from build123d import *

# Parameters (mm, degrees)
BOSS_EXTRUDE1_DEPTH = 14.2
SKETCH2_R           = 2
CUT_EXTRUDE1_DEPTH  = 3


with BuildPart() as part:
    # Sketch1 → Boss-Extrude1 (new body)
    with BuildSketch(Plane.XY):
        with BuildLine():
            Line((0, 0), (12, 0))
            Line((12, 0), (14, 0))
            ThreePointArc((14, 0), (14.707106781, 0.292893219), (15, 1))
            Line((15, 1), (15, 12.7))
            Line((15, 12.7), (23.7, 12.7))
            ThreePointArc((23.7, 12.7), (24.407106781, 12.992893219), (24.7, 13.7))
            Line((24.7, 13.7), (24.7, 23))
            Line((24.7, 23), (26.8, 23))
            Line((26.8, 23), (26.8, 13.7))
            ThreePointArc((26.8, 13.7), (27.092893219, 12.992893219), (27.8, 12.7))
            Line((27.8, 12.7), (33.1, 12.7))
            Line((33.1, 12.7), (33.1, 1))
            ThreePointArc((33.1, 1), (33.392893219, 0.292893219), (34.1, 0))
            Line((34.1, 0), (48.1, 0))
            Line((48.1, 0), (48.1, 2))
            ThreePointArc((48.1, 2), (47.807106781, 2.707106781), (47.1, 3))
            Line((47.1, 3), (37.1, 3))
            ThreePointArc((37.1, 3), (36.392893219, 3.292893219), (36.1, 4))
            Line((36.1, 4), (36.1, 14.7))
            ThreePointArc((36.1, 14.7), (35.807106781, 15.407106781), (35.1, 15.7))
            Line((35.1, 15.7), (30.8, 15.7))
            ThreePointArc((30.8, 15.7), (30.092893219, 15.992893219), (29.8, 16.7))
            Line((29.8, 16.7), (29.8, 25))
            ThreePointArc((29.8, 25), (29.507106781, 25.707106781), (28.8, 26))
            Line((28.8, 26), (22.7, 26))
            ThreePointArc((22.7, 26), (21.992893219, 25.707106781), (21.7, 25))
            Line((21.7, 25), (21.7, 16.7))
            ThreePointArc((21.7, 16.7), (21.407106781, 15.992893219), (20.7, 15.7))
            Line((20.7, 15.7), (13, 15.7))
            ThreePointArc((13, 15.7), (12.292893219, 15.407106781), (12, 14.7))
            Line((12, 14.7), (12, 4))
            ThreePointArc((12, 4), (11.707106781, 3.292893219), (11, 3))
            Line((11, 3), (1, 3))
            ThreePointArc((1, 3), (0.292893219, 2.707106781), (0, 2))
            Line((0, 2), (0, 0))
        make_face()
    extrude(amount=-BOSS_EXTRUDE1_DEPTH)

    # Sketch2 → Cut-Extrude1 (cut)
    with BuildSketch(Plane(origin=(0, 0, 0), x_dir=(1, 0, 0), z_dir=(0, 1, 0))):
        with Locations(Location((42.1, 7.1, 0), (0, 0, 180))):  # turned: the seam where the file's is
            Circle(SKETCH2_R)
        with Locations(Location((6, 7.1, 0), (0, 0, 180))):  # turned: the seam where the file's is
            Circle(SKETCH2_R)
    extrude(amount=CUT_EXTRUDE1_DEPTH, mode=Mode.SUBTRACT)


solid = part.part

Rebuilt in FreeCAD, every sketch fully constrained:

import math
import FreeCAD as App
import Part
import Sketcher
Q = App.Units.Quantity

doc = App.newDocument("Part")
body = doc.addObject("PartDesign::Body", "Body")

# Sketch on XY plane
sketch1 = doc.addObject("Sketcher::SketchObject", "Sketch")
body.addObject(sketch1)
sketch1.AttachmentSupport = (doc.XY_Plane, [""])
sketch1.MapMode = "FlatFace"
sketch1.addGeometry([
    Part.LineSegment(App.Vector(0, 0, 0), App.Vector(14, 0, 0)),  # 0
    Part.ArcOfCircle(Part.Circle(App.Vector(14, 1, 0), App.Vector(0, 0, 1), 1), math.radians(-90), math.radians(0)),  # 1
    Part.LineSegment(App.Vector(15, 1, 0), App.Vector(15, 12.7, 0)),  # 2
    Part.LineSegment(App.Vector(15, 12.7, 0), App.Vector(23.7, 12.7, 0)),  # 3
    Part.ArcOfCircle(Part.Circle(App.Vector(23.7, 13.7, 0), App.Vector(0, 0, 1), 1), math.radians(-90), math.radians(0)),  # 4
    Part.LineSegment(App.Vector(24.7, 13.7, 0), App.Vector(24.7, 23, 0)),  # 5
    Part.LineSegment(App.Vector(24.7, 23, 0), App.Vector(26.8, 23, 0)),  # 6
    Part.LineSegment(App.Vector(26.8, 23, 0), App.Vector(26.8, 13.7, 0)),  # 7
    Part.ArcOfCircle(Part.Circle(App.Vector(27.8, 13.7, 0), App.Vector(0, 0, 1), 1), math.radians(-180), math.radians(-90)),  # 8
    Part.LineSegment(App.Vector(27.8, 12.7, 0), App.Vector(33.1, 12.7, 0)),  # 9
    Part.LineSegment(App.Vector(33.1, 12.7, 0), App.Vector(33.1, 1, 0)),  # 10
    Part.ArcOfCircle(Part.Circle(App.Vector(34.1, 1, 0), App.Vector(0, 0, 1), 1), math.radians(-180), math.radians(-90)),  # 11
    Part.LineSegment(App.Vector(34.1, 0, 0), App.Vector(48.1, 0, 0)),  # 12
    Part.LineSegment(App.Vector(48.1, 0, 0), App.Vector(48.1, 2, 0)),  # 13
    Part.ArcOfCircle(Part.Circle(App.Vector(47.1, 2, 0), App.Vector(0, 0, 1), 1), math.radians(0), math.radians(90)),  # 14
    Part.LineSegment(App.Vector(47.1, 3, 0), App.Vector(37.1, 3, 0)),  # 15
    Part.ArcOfCircle(Part.Circle(App.Vector(37.1, 4, 0), App.Vector(0, 0, 1), 1), math.radians(-180), math.radians(-90)),  # 16
    Part.LineSegment(App.Vector(36.1, 4, 0), App.Vector(36.1, 14.7, 0)),  # 17
    Part.ArcOfCircle(Part.Circle(App.Vector(35.1, 14.7, 0), App.Vector(0, 0, 1), 1), math.radians(0), math.radians(90)),  # 18
    Part.LineSegment(App.Vector(35.1, 15.7, 0), App.Vector(30.8, 15.7, 0)),  # 19
    Part.ArcOfCircle(Part.Circle(App.Vector(30.8, 16.7, 0), App.Vector(0, 0, 1), 1), math.radians(-180), math.radians(-90)),  # 20
    Part.LineSegment(App.Vector(29.8, 16.7, 0), App.Vector(29.8, 25, 0)),  # 21
    Part.ArcOfCircle(Part.Circle(App.Vector(28.8, 25, 0), App.Vector(0, 0, 1), 1), math.radians(0), math.radians(90)),  # 22
    Part.LineSegment(App.Vector(28.8, 26, 0), App.Vector(22.7, 26, 0)),  # 23
    Part.ArcOfCircle(Part.Circle(App.Vector(22.7, 25, 0), App.Vector(0, 0, 1), 1), math.radians(90), math.radians(180)),  # 24
    Part.LineSegment(App.Vector(21.7, 25, 0), App.Vector(21.7, 16.7, 0)),  # 25
    Part.ArcOfCircle(Part.Circle(App.Vector(20.7, 16.7, 0), App.Vector(0, 0, 1), 1), math.radians(-90), math.radians(0)),  # 26
    Part.LineSegment(App.Vector(20.7, 15.7, 0), App.Vector(13, 15.7, 0)),  # 27
    Part.ArcOfCircle(Part.Circle(App.Vector(13, 14.7, 0), App.Vector(0, 0, 1), 1), math.radians(90), math.radians(180)),  # 28
    Part.LineSegment(App.Vector(12, 14.7, 0), App.Vector(12, 4, 0)),  # 29
    Part.ArcOfCircle(Part.Circle(App.Vector(11, 4, 0), App.Vector(0, 0, 1), 1), math.radians(-90), math.radians(0)),  # 30
    Part.LineSegment(App.Vector(11, 3, 0), App.Vector(1, 3, 0)),  # 31
    Part.ArcOfCircle(Part.Circle(App.Vector(1, 2, 0), App.Vector(0, 0, 1), 1), math.radians(90), math.radians(180)),  # 32
    Part.LineSegment(App.Vector(0, 2, 0), App.Vector(0, 0, 0)),  # 33
], False)
sketch1.addConstraint([
    Sketcher.Constraint("Tangent", 0, 2, 1, 1),
    Sketcher.Constraint("Tangent", 1, 2, 2, 1),
    Sketcher.Constraint("Coincident", 2, 2, 3, 1),
    Sketcher.Constraint("Tangent", 3, 2, 4, 1),
    Sketcher.Constraint("Tangent", 4, 2, 5, 1),
    Sketcher.Constraint("Coincident", 5, 2, 6, 1),
    Sketcher.Constraint("Coincident", 6, 2, 7, 1),
    Sketcher.Constraint("Tangent", 7, 2, 8, 1),
    Sketcher.Constraint("Tangent", 8, 2, 9, 1),
    Sketcher.Constraint("Coincident", 9, 2, 10, 1),
    Sketcher.Constraint("Tangent", 10, 2, 11, 1),
    Sketcher.Constraint("Tangent", 11, 2, 12, 1),
    Sketcher.Constraint("Coincident", 12, 2, 13, 1),
    Sketcher.Constraint("Tangent", 13, 2, 14, 1),
    Sketcher.Constraint("Tangent", 14, 2, 15, 1),
    Sketcher.Constraint("Tangent", 15, 2, 16, 2),
    Sketcher.Constraint("Tangent", 16, 1, 17, 1),
    Sketcher.Constraint("Tangent", 17, 2, 18, 1),
    Sketcher.Constraint("Tangent", 18, 2, 19, 1),
    Sketcher.Constraint("Tangent", 19, 2, 20, 2),
    Sketcher.Constraint("Tangent", 20, 1, 21, 1),
    Sketcher.Constraint("Tangent", 21, 2, 22, 1),
    Sketcher.Constraint("Tangent", 22, 2, 23, 1),
    Sketcher.Constraint("Tangent", 23, 2, 24, 1),
    Sketcher.Constraint("Tangent", 24, 2, 25, 1),
    Sketcher.Constraint("Tangent", 25, 2, 26, 2),
    Sketcher.Constraint("Tangent", 26, 1, 27, 1),
    Sketcher.Constraint("Tangent", 27, 2, 28, 1),
    Sketcher.Constraint("Tangent", 28, 2, 29, 1),
    Sketcher.Constraint("Tangent", 29, 2, 30, 2),
    Sketcher.Constraint("Tangent", 30, 1, 31, 1),
    Sketcher.Constraint("Tangent", 31, 2, 32, 1),
    Sketcher.Constraint("Tangent", 32, 2, 33, 1),
    Sketcher.Constraint("Coincident", 33, 2, 0, 1),
    Sketcher.Constraint("Horizontal", 0),
    Sketcher.Constraint("Vertical", 2),
    Sketcher.Constraint("Horizontal", 3),
    Sketcher.Constraint("Vertical", 5),
    Sketcher.Constraint("Horizontal", 6),
    Sketcher.Constraint("Vertical", 7),
    Sketcher.Constraint("Horizontal", 9),
    Sketcher.Constraint("Vertical", 10),
    Sketcher.Constraint("Horizontal", 12),
    Sketcher.Constraint("Vertical", 13),
    Sketcher.Constraint("Horizontal", 15),
    Sketcher.Constraint("Vertical", 17),
    Sketcher.Constraint("Horizontal", 19),
    Sketcher.Constraint("Vertical", 21),
    Sketcher.Constraint("Horizontal", 23),
    Sketcher.Constraint("Vertical", 25),
    Sketcher.Constraint("Horizontal", 27),
    Sketcher.Constraint("Vertical", 29),
    Sketcher.Constraint("Horizontal", 31),
    Sketcher.Constraint("Vertical", 33),
    Sketcher.Constraint("Coincident", 33, 2, -1, 1),
    Sketcher.Constraint("Equal", 1, 4),
    Sketcher.Constraint("Equal", 4, 8),
    Sketcher.Constraint("Equal", 8, 11),
    Sketcher.Constraint("Equal", 11, 14),
    Sketcher.Constraint("Equal", 14, 16),
    Sketcher.Constraint("Equal", 16, 18),
    Sketcher.Constraint("Equal", 18, 20),
    Sketcher.Constraint("Equal", 20, 22),
    Sketcher.Constraint("Equal", 22, 24),
    Sketcher.Constraint("Equal", 24, 26),
    Sketcher.Constraint("Equal", 26, 28),
    Sketcher.Constraint("Equal", 28, 30),
    Sketcher.Constraint("Equal", 30, 32),
    Sketcher.Constraint("PointOnObject", 11, 2, -1),
    Sketcher.Constraint("Horizontal", 4, 3, 8, 3),
    Sketcher.Constraint("Horizontal", 20, 3, 26, 3),
    Sketcher.Constraint("Horizontal", 16, 3, 30, 3),
    Sketcher.Constraint("Equal", 0, 12),
    Sketcher.Constraint("Equal", 15, 31),
    Sketcher.Constraint("Radius", 1, Q("1 mm")),
    Sketcher.Constraint("DistanceX", 0, 1, 0, 2, Q("14 mm")),
    Sketcher.Constraint("DistanceX", 15, 2, 15, 1, Q("10 mm")),
    Sketcher.Constraint("DistanceY", 13, 1, 13, 2, Q("2 mm")),
    Sketcher.Constraint("DistanceX", 3, 1, 3, 2, Q("8.7 mm")),
    Sketcher.Constraint("DistanceX", 6, 1, 6, 2, Q("2.1 mm")),
    Sketcher.Constraint("DistanceX", 9, 1, 9, 2, Q("5.3 mm")),
    Sketcher.Constraint("DistanceX", 19, 2, 19, 1, Q("4.3 mm")),
    Sketcher.Constraint("DistanceX", 23, 2, 23, 1, Q("6.1 mm")),
    Sketcher.Constraint("DistanceY", 2, 1, 2, 2, Q("11.7 mm")),
    Sketcher.Constraint("DistanceY", 5, 1, 5, 2, Q("9.3 mm")),
    Sketcher.Constraint("DistanceY", 17, 1, 17, 2, Q("10.7 mm")),
    Sketcher.Constraint("DistanceY", 21, 1, 21, 2, Q("8.3 mm")),
])
pad1 = doc.addObject("PartDesign::Pad", "Pad")
body.addObject(pad1)
pad1.Profile = sketch1
pad1.Length = 14.2
pad1.Reversed = True

# Sketch on XZ plane
sketch2 = doc.addObject("Sketcher::SketchObject", "Sketch001")
body.addObject(sketch2)
sketch2.AttachmentSupport = (doc.XZ_Plane, [""])
sketch2.MapMode = "FlatFace"
sketch2.addGeometry([
    Part.Circle(App.Vector(42.1, -7.1, 0), App.Vector(0, 0, 1), 2),
    Part.Circle(App.Vector(6, -7.1, 0), App.Vector(0, 0, 1), 2),
], False)
sketch2.addConstraint([
    Sketcher.Constraint("Equal", 0, 1),
    Sketcher.Constraint("Horizontal", 0, 3, 1, 3),
    Sketcher.Constraint("Diameter", 0, Q("4 mm")),
    Sketcher.Constraint("DistanceX", -1, 1, 1, 3, Q("6 mm")),
    Sketcher.Constraint("DistanceX", -1, 1, 0, 3, Q("42.1 mm")),
    Sketcher.Constraint("DistanceY", 0, 3, -1, 1, Q("7.1 mm")),
])
pocket1 = doc.addObject("PartDesign::Pocket", "Pocket")
body.addObject(pocket1)
pocket1.Profile = sketch2
pocket1.Length = 3

doc.recompute()
